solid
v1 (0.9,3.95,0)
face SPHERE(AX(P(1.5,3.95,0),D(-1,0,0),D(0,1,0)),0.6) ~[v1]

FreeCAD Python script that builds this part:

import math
import FreeCAD as App
import Part
import Sketcher

V = App.Vector
Q = App.Units.Quantity

doc = App.newDocument("Part")
params = doc.addObject("Spreadsheet::Sheet", "Params")
for row, (alias, value) in enumerate([
    ("sketch1_radius", "0.6 mm"),
    ("revolution_angle", "360 deg"),
], start=1):
    params.set(f"A{row}", alias)
    params.set(f"B{row}", "=" + value)
    params.setAlias(f"B{row}", alias)

body = doc.addObject("PartDesign::Body", "Body")

sketch1 = body.newObject("Sketcher::SketchObject", "Sketch")
sketch1.AttachmentSupport = (doc.getObject("XY_Plane"), [""])
sketch1.MapMode = "FlatFace"
sketch1.addGeometry(Part.LineSegment(V(0.9, 4, 0), V(2.1, 4, 0)), False)
sketch1.addGeometry(Part.ArcOfCircle(Part.Circle(V(1.5, 4, 0), V(0, 0, 1), 0.6), math.radians(0), math.radians(180)), False)
sketch1.addGeometry(Part.LineSegment(V(0.9, 4, 0), V(2.1, 4, 0)), True)
sketch1.addConstraint(Sketcher.Constraint("Coincident", 0, 1, 1, 2))
sketch1.addConstraint(Sketcher.Constraint("Coincident", 1, 1, 0, 2))
sketch1.addConstraint(Sketcher.Constraint("Horizontal", 0))
sketch1.addConstraint(Sketcher.Constraint("Horizontal", 2))
sketch1.addConstraint(Sketcher.Constraint("Coincident", 2, 1, 0, 1))
sketch1.addConstraint(Sketcher.Constraint("Horizontal", 1, 3, 0, 1))
sketch1.addConstraint(Sketcher.Constraint("Equal", 0, 2))
sketch1.addConstraint(Sketcher.Constraint("Radius", 1, Q("0.6 mm")))
sketch1.addConstraint(Sketcher.Constraint("DistanceX", -1, 1, 1, 3, Q("1.5 mm")))
sketch1.addConstraint(Sketcher.Constraint("DistanceY", -1, 1, 1, 3, Q("3.95 mm")))
sketch1.setExpression("Constraints[7]", "Params.sketch1_radius")
revolution = body.newObject("PartDesign::Revolution", "Revolution")
revolution.Profile = sketch1
revolution.ReferenceAxis = (sketch1, ["Axis0"])
revolution.setExpression("Angle", "Params.revolution_angle")

doc.recompute()
